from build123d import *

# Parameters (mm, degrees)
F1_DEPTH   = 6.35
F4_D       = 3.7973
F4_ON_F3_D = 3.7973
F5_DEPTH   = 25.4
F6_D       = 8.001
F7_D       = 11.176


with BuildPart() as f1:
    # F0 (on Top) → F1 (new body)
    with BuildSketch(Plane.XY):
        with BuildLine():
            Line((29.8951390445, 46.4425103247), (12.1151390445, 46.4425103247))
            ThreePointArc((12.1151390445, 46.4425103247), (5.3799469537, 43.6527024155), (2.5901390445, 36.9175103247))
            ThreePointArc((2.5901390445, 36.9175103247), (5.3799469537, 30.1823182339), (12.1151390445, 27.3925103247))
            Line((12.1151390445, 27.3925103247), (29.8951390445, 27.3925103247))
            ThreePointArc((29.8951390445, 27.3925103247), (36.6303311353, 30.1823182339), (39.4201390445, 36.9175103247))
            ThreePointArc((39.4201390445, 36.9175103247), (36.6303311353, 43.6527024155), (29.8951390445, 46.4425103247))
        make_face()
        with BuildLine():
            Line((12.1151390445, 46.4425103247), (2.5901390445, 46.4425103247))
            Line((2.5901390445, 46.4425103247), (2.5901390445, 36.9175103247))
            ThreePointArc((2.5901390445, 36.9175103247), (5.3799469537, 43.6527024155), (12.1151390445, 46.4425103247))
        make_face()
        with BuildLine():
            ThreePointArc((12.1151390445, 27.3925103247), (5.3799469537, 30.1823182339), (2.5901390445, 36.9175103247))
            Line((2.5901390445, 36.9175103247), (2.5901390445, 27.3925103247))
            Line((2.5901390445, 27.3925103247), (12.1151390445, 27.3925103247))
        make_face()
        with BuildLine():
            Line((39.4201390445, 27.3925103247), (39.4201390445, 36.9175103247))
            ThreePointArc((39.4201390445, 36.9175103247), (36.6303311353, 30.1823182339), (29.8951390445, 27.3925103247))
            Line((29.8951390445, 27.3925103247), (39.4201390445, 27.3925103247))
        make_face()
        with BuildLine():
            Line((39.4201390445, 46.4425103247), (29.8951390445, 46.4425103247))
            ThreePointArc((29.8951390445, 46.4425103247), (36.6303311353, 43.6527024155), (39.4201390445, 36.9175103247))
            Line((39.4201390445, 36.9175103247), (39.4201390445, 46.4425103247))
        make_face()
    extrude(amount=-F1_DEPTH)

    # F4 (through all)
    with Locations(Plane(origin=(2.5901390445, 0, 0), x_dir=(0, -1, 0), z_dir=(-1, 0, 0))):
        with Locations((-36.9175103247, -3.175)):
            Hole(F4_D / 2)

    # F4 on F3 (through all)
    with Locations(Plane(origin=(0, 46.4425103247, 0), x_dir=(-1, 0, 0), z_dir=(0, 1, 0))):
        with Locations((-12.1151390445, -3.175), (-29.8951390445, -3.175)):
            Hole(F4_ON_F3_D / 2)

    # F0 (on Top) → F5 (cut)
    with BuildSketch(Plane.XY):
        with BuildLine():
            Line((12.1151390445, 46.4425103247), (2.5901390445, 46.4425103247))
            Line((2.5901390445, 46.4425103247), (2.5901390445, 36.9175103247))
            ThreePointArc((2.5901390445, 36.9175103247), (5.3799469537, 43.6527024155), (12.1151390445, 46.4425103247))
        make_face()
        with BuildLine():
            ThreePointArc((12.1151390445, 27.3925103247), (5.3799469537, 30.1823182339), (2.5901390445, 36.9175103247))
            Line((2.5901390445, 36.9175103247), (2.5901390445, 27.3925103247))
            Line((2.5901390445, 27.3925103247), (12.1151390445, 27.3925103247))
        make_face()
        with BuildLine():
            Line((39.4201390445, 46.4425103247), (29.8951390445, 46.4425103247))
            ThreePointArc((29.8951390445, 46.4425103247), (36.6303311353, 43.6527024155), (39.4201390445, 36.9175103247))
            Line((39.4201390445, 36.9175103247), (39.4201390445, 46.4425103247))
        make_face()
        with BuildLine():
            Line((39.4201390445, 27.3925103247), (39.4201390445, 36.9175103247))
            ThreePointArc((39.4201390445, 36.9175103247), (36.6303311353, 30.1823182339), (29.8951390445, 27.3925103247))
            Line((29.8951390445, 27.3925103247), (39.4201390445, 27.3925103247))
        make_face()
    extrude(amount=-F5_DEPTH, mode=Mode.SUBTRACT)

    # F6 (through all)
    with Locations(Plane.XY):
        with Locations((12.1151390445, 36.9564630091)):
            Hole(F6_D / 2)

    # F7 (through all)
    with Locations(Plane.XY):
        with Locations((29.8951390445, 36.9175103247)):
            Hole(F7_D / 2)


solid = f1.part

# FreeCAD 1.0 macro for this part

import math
import FreeCAD as App
import Part
import Sketcher
from FreeCAD import Vector
Q = App.Units.Quantity


def add_polygon(sketch, points):
    """Adds a closed chain of lines whose ends are joined by coincident constraints."""
    first, n = sketch.GeometryCount, len(points)
    for a, b in zip(points, points[1:] + points[:1]):
        sketch.addGeometry(Part.LineSegment(App.Vector(*a, 0), App.Vector(*b, 0)), False)
    for i in range(n):
        sketch.addConstraint(Sketcher.Constraint("Coincident", first + i, 2, first + (i + 1) % n, 1))

doc = App.newDocument("Part")
body = doc.addObject("PartDesign::Body", "Body")

# Sketch on XY plane
sketch1 = body.newObject("Sketcher::SketchObject", "Sketch")
sketch1.AttachmentSupport = (doc.getObject("XY_Plane"), [""])
sketch1.MapMode = "FlatFace"
add_polygon(sketch1, [(3, 46), (3, 27), (39, 27), (39, 46)])  # lines 0-3
sketch1.addConstraint(Sketcher.Constraint("Vertical", 0))
sketch1.addConstraint(Sketcher.Constraint("Horizontal", 1))
sketch1.addConstraint(Sketcher.Constraint("Vertical", 2))
sketch1.addConstraint(Sketcher.Constraint("Horizontal", 3))
sketch1.addConstraint(Sketcher.Constraint("DistanceX", 1, 1, 1, 2, Q("1.45 in")))
sketch1.addConstraint(Sketcher.Constraint("DistanceY", 0, 2, 0, 1, Q("0.75 in")))
sketch1.addConstraint(Sketcher.Constraint("DistanceX", -1, 1, 0, 2, Q("2.590139 mm")))
sketch1.addConstraint(Sketcher.Constraint("DistanceY", -1, 1, 0, 2, Q("27.39251 mm")))
pad1 = body.newObject("PartDesign::Pad", "Pad")
pad1.Profile = sketch1
pad1.Length = Q("0.25 in")
pad1.Reversed = True

# Sketch on YZ plane
sketch2 = body.newObject("Sketcher::SketchObject", "Sketch001")
sketch2.AttachmentSupport = (doc.getObject("YZ_Plane"), [""])
sketch2.MapMode = "FlatFace"
sketch2.AttachmentOffset = App.Placement(Vector(0, 0, 2.590139), App.Rotation())
sketch2.addGeometry(Part.Circle(Vector(36.9, -3.2, 0), Vector(0, 0, 1), 1.9), False)
sketch2.addConstraint(Sketcher.Constraint("Diameter", 0, Q("0.1495 in")))
sketch2.addConstraint(Sketcher.Constraint("DistanceY", 0, 3, -1, 1, Q("0.125 in")))
sketch2.addConstraint(Sketcher.Constraint("DistanceX", -1, 1, 0, 3, Q("36.91751 mm")))
doc.recompute()
hole = body.newObject("PartDesign::Hole", "Hole")
hole.Profile = sketch2
hole.ThreadType = "None"
hole.Diameter = Q("0.1495 in")
hole.DepthType = "ThroughAll"
hole.Reversed = True

# Sketch on XZ plane
sketch3 = body.newObject("Sketcher::SketchObject", "Sketch002")
sketch3.AttachmentSupport = (doc.getObject("XZ_Plane"), [""])
sketch3.MapMode = "FlatFace"
sketch3.AttachmentOffset = App.Placement(Vector(0, 0, -46.44251), App.Rotation())
sketch3.addGeometry(Part.Circle(Vector(12.1, -3.2, 0), Vector(0, 0, 1), 1.9), False)
sketch3.addGeometry(Part.Circle(Vector(29.9, -3.2, 0), Vector(0, 0, 1), 1.9), False)
sketch3.addConstraint(Sketcher.Constraint("Equal", 0, 1))
sketch3.addConstraint(Sketcher.Constraint("Horizontal", 0, 3, 1, 3))
sketch3.addConstraint(Sketcher.Constraint("Diameter", 0, Q("0.1495 in")))
sketch3.addConstraint(Sketcher.Constraint("DistanceX", 0, 3, 1, 3, Q("0.7 in")))
sketch3.addConstraint(Sketcher.Constraint("DistanceY", 0, 3, -1, 1, Q("0.125 in")))
sketch3.addConstraint(Sketcher.Constraint("DistanceX", -1, 1, 0, 3, Q("12.115139 mm")))
doc.recompute()
hole2 = body.newObject("PartDesign::Hole", "Hole001")
hole2.Profile = sketch3
hole2.ThreadType = "None"
hole2.Diameter = Q("0.1495 in")
hole2.DepthType = "ThroughAll"
hole2.Reversed = True

# Sketch on XY plane
sketch4 = body.newObject("Sketcher::SketchObject", "Sketch003")
sketch4.AttachmentSupport = (doc.getObject("XY_Plane"), [""])
sketch4.MapMode = "FlatFace"
sketch4.addGeometry(Part.LineSegment(Vector(12, 46, 0), Vector(3, 46, 0)), False)
sketch4.addGeometry(Part.LineSegment(Vector(3, 46, 0), Vector(3, 37, 0)), False)
sketch4.addGeometry(Part.ArcOfCircle(Part.Circle(Vector(12, 37, 0), Vector(0, 0, 1), 10), math.radians(90), math.radians(180)), False)
sketch4.addGeometry(Part.ArcOfCircle(Part.Circle(Vector(12, 37, 0), Vector(0, 0, 1), 10), math.radians(180), math.radians(270)), False)
sketch4.addGeometry(Part.LineSegment(Vector(3, 37, 0), Vector(3, 27, 0)), False)
sketch4.addGeometry(Part.LineSegment(Vector(3, 27, 0), Vector(12, 27, 0)), False)
sketch4.addGeometry(Part.LineSegment(Vector(39, 46, 0), Vector(30, 46, 0)), False)
sketch4.addGeometry(Part.ArcOfCircle(Part.Circle(Vector(30, 37, 0), Vector(0, 0, 1), 10), math.radians(0), math.radians(90)), False)
sketch4.addGeometry(Part.LineSegment(Vector(39, 37, 0), Vector(39, 46, 0)), False)
sketch4.addGeometry(Part.LineSegment(Vector(39, 27, 0), Vector(39, 37, 0)), False)
sketch4.addGeometry(Part.ArcOfCircle(Part.Circle(Vector(30, 37, 0), Vector(0, 0, 1), 10), math.radians(-90), math.radians(0)), False)
sketch4.addGeometry(Part.LineSegment(Vector(30, 27, 0), Vector(39, 27, 0)), False)
sketch4.addConstraint(Sketcher.Constraint("Coincident", 0, 2, 1, 1))
sketch4.addConstraint(Sketcher.Constraint("Tangent", 1, 2, 2, 2))
sketch4.addConstraint(Sketcher.Constraint("Tangent", 2, 1, 0, 1))
sketch4.addConstraint(Sketcher.Constraint("Tangent", 3, 1, 4, 1))
sketch4.addConstraint(Sketcher.Constraint("Coincident", 4, 2, 5, 1))
sketch4.addConstraint(Sketcher.Constraint("Tangent", 5, 2, 3, 2))
sketch4.addConstraint(Sketcher.Constraint("Tangent", 6, 2, 7, 2))
sketch4.addConstraint(Sketcher.Constraint("Tangent", 7, 1, 8, 1))
sketch4.addConstraint(Sketcher.Constraint("Coincident", 8, 2, 6, 1))
sketch4.addConstraint(Sketcher.Constraint("Tangent", 9, 2, 10, 2))
sketch4.addConstraint(Sketcher.Constraint("Tangent", 10, 1, 11, 1))
sketch4.addConstraint(Sketcher.Constraint("Coincident", 11, 2, 9, 1))
sketch4.addConstraint(Sketcher.Constraint("Horizontal", 0))
sketch4.addConstraint(Sketcher.Constraint("Vertical", 1))
sketch4.addConstraint(Sketcher.Constraint("Vertical", 4))
sketch4.addConstraint(Sketcher.Constraint("Horizontal", 5))
sketch4.addConstraint(Sketcher.Constraint("Horizontal", 6))
sketch4.addConstraint(Sketcher.Constraint("Vertical", 8))
sketch4.addConstraint(Sketcher.Constraint("Vertical", 9))
sketch4.addConstraint(Sketcher.Constraint("Horizontal", 11))
sketch4.addConstraint(Sketcher.Constraint("Coincident", 3, 3, 2, 3))
sketch4.addConstraint(Sketcher.Constraint("Coincident", 10, 3, 7, 3))
sketch4.addConstraint(Sketcher.Constraint("Equal", 2, 3))
sketch4.addConstraint(Sketcher.Constraint("Equal", 3, 7))
sketch4.addConstraint(Sketcher.Constraint("Equal", 7, 10))
sketch4.addConstraint(Sketcher.Constraint("Horizontal", 3, 3, 7, 3))
sketch4.addConstraint(Sketcher.Constraint("Radius", 2, Q("0.375 in")))
sketch4.addConstraint(Sketcher.Constraint("DistanceX", 2, 3, 7, 3, Q("0.7 in")))
sketch4.addConstraint(Sketcher.Constraint("DistanceX", -1, 1, 2, 3, Q("12.115139 mm")))
sketch4.addConstraint(Sketcher.Constraint("DistanceY", -1, 1, 2, 3, Q("36.91751 mm")))
pocket1 = body.newObject("PartDesign::Pocket", "Pocket")
pocket1.Profile = sketch4
pocket1.Length = Q("1 in")

# Sketch on XY plane
sketch5 = body.newObject("Sketcher::SketchObject", "Sketch004")
sketch5.AttachmentSupport = (doc.getObject("XY_Plane"), [""])
sketch5.MapMode = "FlatFace"
sketch5.addGeometry(Part.Circle(Vector(12.1, 37, 0), Vector(0, 0, 1), 4), False)
sketch5.addConstraint(Sketcher.Constraint("Diameter", 0, Q("0.315 in")))
sketch5.addConstraint(Sketcher.Constraint("DistanceX", -1, 1, 0, 3, Q("12.115139 mm")))
sketch5.addConstraint(Sketcher.Constraint("DistanceY", -1, 1, 0, 3, Q("36.956463 mm")))
doc.recompute()
hole3 = body.newObject("PartDesign::Hole", "Hole002")
hole3.Profile = sketch5
hole3.ThreadType = "None"
hole3.Diameter = Q("0.315 in")
hole3.DepthType = "ThroughAll"

# Sketch on XY plane
sketch6 = body.newObject("Sketcher::SketchObject", "Sketch005")
sketch6.AttachmentSupport = (doc.getObject("XY_Plane"), [""])
sketch6.MapMode = "FlatFace"
sketch6.addGeometry(Part.Circle(Vector(30, 37, 0), Vector(0, 0, 1), 6), False)
sketch6.addConstraint(Sketcher.Constraint("Diameter", 0, Q("0.44 in")))
sketch6.addConstraint(Sketcher.Constraint("DistanceX", -1, 1, 0, 3, Q("29.895139 mm")))
sketch6.addConstraint(Sketcher.Constraint("DistanceY", -1, 1, 0, 3, Q("36.91751 mm")))
doc.recompute()
hole4 = body.newObject("PartDesign::Hole", "Hole003")
hole4.Profile = sketch6
hole4.ThreadType = "None"
hole4.Diameter = Q("0.44 in")
hole4.DepthType = "ThroughAll"

doc.recompute()
